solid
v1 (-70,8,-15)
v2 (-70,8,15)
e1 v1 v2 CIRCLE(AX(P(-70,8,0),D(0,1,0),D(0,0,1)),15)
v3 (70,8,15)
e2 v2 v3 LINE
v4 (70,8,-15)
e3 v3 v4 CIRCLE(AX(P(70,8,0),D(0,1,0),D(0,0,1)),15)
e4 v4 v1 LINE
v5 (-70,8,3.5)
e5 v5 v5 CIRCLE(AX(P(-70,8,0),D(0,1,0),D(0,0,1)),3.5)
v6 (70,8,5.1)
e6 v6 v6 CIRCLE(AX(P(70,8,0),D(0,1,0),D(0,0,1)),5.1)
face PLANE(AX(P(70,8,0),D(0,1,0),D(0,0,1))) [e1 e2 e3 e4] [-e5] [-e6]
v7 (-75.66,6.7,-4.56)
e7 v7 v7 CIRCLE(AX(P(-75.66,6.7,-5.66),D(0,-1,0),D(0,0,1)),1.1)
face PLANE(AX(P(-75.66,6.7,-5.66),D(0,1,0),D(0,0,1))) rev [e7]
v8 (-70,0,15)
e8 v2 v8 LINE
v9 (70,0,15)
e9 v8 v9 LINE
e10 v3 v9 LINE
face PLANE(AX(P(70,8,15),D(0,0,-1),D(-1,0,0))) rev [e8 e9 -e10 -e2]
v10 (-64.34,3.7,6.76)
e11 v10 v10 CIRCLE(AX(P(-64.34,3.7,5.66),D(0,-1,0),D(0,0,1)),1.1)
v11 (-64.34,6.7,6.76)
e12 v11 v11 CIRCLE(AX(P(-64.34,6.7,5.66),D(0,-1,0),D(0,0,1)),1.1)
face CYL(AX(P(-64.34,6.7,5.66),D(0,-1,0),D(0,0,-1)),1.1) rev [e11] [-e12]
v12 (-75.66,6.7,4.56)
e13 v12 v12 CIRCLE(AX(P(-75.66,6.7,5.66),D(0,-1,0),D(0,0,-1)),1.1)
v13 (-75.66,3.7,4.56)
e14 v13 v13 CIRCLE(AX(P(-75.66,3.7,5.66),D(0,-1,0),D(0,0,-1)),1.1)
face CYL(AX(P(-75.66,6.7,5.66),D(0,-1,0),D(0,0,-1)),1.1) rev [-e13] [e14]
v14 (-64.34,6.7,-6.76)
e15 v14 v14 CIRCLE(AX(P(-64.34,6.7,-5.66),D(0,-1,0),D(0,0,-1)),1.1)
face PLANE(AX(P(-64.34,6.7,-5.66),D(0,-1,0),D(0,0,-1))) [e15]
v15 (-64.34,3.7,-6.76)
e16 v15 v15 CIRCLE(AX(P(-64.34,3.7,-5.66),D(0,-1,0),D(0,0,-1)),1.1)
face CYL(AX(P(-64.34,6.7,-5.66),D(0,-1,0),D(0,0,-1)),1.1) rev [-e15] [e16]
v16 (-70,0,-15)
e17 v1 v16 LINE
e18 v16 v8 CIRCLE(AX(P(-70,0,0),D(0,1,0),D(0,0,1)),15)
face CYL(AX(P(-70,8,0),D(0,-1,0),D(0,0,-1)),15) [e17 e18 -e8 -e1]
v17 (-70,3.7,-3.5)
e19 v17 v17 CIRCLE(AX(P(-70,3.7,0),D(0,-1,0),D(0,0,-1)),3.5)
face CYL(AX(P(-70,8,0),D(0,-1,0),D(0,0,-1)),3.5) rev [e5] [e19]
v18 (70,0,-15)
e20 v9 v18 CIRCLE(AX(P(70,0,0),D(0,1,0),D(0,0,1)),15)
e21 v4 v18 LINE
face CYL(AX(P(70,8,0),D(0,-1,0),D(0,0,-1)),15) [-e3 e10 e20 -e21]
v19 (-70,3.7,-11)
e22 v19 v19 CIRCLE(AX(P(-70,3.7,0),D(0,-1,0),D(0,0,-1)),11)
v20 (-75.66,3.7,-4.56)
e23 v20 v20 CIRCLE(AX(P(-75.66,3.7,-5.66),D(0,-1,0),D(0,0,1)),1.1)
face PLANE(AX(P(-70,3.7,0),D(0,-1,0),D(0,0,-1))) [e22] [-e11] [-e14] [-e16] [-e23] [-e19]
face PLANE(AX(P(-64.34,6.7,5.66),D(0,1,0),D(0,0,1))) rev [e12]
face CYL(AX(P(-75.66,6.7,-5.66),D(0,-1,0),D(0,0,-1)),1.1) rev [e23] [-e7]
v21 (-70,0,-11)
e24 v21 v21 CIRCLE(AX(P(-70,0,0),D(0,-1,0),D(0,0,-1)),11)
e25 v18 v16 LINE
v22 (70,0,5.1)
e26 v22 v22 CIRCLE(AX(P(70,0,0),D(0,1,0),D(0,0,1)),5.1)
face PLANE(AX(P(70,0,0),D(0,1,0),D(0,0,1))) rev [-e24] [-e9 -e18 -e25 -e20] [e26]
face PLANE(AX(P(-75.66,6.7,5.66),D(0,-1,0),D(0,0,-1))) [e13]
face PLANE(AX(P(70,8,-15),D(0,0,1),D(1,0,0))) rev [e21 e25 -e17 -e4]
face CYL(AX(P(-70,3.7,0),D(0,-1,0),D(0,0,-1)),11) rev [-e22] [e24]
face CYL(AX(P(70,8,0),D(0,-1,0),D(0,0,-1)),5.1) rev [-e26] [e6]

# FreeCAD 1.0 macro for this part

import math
import FreeCAD as App
import Part
import Sketcher

doc = App.newDocument("Part")
body = doc.addObject("PartDesign::Body", "Body")

sketch1 = body.newObject("Sketcher::SketchObject", "Sketch")
sketch1.AttachmentSupport = (doc.getObject("XZ_Plane"), [""])
sketch1.MapMode = "FlatFace"
sketch1.addGeometry([
    Part.LineSegment(App.Vector(-70, 15, 0), App.Vector(70, 15, 0)),
    Part.ArcOfCircle(Part.Circle(App.Vector(70, 0, 0), App.Vector(0, 0, 1), 15), math.radians(-90), math.radians(90)),
    Part.LineSegment(App.Vector(70, -15, 0), App.Vector(-70, -15, 0)),
    Part.ArcOfCircle(Part.Circle(App.Vector(-70, 0, 0), App.Vector(0, 0, 1), 15), math.radians(90), math.radians(270)),
    Part.Circle(App.Vector(70, 0, 0), App.Vector(0, 0, 1), 5.1),
    Part.Circle(App.Vector(-70, 0, 0), App.Vector(0, 0, 1), 3.5),
], False)
sketch1.addConstraint([
    Sketcher.Constraint("Tangent", 0, 2, 1, 2),
    Sketcher.Constraint("Tangent", 1, 1, 2, 1),
    Sketcher.Constraint("Tangent", 2, 2, 3, 2),
    Sketcher.Constraint("Tangent", 3, 1, 0, 1),
    Sketcher.Constraint("Horizontal", 0),
    Sketcher.Constraint("Horizontal", 2),
    Sketcher.Constraint("Coincident", 4, 3, 1, 3),
    Sketcher.Constraint("Coincident", 5, 3, 3, 3),
    Sketcher.Constraint("Symmetric", 1, 3, 3, 3, -1, 1),
    Sketcher.Constraint("Diameter", 5, 7.0),
    Sketcher.Constraint("Radius", 1, 15.0),
    Sketcher.Constraint("Diameter", 4, 10.2),
    Sketcher.Constraint("DistanceX", 0, 1, 0, 2, 140.0),
])
pad1 = body.newObject("PartDesign::Pad", "Pad")
pad1.Profile = sketch1
pad1.Length = 8
pad1.Reversed = True

sketch2 = body.newObject("Sketcher::SketchObject", "Sketch001")
sketch2.AttachmentSupport = (doc.getObject("XZ_Plane"), [""])
sketch2.MapMode = "FlatFace"
sketch2.addGeometry(Part.Circle(App.Vector(-70, 0, 0), App.Vector(0, 0, 1), 11), False)
sketch2.addConstraint([
    Sketcher.Constraint("PointOnObject", 0, 3, -1),
    Sketcher.Constraint("Diameter", 0, 22.0),
    Sketcher.Constraint("DistanceX", 0, 3, -1, 1, 70.0),
])
pocket1 = body.newObject("PartDesign::Pocket", "Pocket")
pocket1.Profile = sketch2
pocket1.Length = 3.7

sketch3 = body.newObject("Sketcher::SketchObject", "Sketch002")
sketch3.AttachmentSupport = (doc.getObject("XZ_Plane"), [""])
sketch3.MapMode = "FlatFace"
sketch3.AttachmentOffset = App.Placement(App.Vector(0, 0, -3.7), App.Rotation())
sketch3.addGeometry([
    Part.Circle(App.Vector(-75.66, 5.66, 0), App.Vector(0, 0, 1), 1.1),
    Part.Circle(App.Vector(-64.34, 5.66, 0), App.Vector(0, 0, 1), 1.1),
    Part.Circle(App.Vector(-64.34, -5.66, 0), App.Vector(0, 0, 1), 1.1),
    Part.Circle(App.Vector(-75.66, -5.66, 0), App.Vector(0, 0, 1), 1.1),
], False)
sketch3.addConstraint([
    Sketcher.Constraint("Equal", 0, 1),
    Sketcher.Constraint("Equal", 1, 2),
    Sketcher.Constraint("Equal", 2, 3),
    Sketcher.Constraint("Symmetric", 1, 3, 2, 3, -1),
    Sketcher.Constraint("Symmetric", 0, 3, 3, 3, -1),
    Sketcher.Constraint("Horizontal", 0, 3, 1, 3),
    Sketcher.Constraint("Diameter", 0, 2.2),
    Sketcher.Constraint("DistanceX", 0, 3, -1, 1, 75.66),
    Sketcher.Constraint("DistanceY", -1, 1, 0, 3, 5.66),
    Sketcher.Constraint("DistanceX", 1, 3, -1, 1, 64.34),
])
pocket2 = body.newObject("PartDesign::Pocket", "Pocket001")
pocket2.Profile = sketch3
pocket2.Length = 3

doc.recompute()
